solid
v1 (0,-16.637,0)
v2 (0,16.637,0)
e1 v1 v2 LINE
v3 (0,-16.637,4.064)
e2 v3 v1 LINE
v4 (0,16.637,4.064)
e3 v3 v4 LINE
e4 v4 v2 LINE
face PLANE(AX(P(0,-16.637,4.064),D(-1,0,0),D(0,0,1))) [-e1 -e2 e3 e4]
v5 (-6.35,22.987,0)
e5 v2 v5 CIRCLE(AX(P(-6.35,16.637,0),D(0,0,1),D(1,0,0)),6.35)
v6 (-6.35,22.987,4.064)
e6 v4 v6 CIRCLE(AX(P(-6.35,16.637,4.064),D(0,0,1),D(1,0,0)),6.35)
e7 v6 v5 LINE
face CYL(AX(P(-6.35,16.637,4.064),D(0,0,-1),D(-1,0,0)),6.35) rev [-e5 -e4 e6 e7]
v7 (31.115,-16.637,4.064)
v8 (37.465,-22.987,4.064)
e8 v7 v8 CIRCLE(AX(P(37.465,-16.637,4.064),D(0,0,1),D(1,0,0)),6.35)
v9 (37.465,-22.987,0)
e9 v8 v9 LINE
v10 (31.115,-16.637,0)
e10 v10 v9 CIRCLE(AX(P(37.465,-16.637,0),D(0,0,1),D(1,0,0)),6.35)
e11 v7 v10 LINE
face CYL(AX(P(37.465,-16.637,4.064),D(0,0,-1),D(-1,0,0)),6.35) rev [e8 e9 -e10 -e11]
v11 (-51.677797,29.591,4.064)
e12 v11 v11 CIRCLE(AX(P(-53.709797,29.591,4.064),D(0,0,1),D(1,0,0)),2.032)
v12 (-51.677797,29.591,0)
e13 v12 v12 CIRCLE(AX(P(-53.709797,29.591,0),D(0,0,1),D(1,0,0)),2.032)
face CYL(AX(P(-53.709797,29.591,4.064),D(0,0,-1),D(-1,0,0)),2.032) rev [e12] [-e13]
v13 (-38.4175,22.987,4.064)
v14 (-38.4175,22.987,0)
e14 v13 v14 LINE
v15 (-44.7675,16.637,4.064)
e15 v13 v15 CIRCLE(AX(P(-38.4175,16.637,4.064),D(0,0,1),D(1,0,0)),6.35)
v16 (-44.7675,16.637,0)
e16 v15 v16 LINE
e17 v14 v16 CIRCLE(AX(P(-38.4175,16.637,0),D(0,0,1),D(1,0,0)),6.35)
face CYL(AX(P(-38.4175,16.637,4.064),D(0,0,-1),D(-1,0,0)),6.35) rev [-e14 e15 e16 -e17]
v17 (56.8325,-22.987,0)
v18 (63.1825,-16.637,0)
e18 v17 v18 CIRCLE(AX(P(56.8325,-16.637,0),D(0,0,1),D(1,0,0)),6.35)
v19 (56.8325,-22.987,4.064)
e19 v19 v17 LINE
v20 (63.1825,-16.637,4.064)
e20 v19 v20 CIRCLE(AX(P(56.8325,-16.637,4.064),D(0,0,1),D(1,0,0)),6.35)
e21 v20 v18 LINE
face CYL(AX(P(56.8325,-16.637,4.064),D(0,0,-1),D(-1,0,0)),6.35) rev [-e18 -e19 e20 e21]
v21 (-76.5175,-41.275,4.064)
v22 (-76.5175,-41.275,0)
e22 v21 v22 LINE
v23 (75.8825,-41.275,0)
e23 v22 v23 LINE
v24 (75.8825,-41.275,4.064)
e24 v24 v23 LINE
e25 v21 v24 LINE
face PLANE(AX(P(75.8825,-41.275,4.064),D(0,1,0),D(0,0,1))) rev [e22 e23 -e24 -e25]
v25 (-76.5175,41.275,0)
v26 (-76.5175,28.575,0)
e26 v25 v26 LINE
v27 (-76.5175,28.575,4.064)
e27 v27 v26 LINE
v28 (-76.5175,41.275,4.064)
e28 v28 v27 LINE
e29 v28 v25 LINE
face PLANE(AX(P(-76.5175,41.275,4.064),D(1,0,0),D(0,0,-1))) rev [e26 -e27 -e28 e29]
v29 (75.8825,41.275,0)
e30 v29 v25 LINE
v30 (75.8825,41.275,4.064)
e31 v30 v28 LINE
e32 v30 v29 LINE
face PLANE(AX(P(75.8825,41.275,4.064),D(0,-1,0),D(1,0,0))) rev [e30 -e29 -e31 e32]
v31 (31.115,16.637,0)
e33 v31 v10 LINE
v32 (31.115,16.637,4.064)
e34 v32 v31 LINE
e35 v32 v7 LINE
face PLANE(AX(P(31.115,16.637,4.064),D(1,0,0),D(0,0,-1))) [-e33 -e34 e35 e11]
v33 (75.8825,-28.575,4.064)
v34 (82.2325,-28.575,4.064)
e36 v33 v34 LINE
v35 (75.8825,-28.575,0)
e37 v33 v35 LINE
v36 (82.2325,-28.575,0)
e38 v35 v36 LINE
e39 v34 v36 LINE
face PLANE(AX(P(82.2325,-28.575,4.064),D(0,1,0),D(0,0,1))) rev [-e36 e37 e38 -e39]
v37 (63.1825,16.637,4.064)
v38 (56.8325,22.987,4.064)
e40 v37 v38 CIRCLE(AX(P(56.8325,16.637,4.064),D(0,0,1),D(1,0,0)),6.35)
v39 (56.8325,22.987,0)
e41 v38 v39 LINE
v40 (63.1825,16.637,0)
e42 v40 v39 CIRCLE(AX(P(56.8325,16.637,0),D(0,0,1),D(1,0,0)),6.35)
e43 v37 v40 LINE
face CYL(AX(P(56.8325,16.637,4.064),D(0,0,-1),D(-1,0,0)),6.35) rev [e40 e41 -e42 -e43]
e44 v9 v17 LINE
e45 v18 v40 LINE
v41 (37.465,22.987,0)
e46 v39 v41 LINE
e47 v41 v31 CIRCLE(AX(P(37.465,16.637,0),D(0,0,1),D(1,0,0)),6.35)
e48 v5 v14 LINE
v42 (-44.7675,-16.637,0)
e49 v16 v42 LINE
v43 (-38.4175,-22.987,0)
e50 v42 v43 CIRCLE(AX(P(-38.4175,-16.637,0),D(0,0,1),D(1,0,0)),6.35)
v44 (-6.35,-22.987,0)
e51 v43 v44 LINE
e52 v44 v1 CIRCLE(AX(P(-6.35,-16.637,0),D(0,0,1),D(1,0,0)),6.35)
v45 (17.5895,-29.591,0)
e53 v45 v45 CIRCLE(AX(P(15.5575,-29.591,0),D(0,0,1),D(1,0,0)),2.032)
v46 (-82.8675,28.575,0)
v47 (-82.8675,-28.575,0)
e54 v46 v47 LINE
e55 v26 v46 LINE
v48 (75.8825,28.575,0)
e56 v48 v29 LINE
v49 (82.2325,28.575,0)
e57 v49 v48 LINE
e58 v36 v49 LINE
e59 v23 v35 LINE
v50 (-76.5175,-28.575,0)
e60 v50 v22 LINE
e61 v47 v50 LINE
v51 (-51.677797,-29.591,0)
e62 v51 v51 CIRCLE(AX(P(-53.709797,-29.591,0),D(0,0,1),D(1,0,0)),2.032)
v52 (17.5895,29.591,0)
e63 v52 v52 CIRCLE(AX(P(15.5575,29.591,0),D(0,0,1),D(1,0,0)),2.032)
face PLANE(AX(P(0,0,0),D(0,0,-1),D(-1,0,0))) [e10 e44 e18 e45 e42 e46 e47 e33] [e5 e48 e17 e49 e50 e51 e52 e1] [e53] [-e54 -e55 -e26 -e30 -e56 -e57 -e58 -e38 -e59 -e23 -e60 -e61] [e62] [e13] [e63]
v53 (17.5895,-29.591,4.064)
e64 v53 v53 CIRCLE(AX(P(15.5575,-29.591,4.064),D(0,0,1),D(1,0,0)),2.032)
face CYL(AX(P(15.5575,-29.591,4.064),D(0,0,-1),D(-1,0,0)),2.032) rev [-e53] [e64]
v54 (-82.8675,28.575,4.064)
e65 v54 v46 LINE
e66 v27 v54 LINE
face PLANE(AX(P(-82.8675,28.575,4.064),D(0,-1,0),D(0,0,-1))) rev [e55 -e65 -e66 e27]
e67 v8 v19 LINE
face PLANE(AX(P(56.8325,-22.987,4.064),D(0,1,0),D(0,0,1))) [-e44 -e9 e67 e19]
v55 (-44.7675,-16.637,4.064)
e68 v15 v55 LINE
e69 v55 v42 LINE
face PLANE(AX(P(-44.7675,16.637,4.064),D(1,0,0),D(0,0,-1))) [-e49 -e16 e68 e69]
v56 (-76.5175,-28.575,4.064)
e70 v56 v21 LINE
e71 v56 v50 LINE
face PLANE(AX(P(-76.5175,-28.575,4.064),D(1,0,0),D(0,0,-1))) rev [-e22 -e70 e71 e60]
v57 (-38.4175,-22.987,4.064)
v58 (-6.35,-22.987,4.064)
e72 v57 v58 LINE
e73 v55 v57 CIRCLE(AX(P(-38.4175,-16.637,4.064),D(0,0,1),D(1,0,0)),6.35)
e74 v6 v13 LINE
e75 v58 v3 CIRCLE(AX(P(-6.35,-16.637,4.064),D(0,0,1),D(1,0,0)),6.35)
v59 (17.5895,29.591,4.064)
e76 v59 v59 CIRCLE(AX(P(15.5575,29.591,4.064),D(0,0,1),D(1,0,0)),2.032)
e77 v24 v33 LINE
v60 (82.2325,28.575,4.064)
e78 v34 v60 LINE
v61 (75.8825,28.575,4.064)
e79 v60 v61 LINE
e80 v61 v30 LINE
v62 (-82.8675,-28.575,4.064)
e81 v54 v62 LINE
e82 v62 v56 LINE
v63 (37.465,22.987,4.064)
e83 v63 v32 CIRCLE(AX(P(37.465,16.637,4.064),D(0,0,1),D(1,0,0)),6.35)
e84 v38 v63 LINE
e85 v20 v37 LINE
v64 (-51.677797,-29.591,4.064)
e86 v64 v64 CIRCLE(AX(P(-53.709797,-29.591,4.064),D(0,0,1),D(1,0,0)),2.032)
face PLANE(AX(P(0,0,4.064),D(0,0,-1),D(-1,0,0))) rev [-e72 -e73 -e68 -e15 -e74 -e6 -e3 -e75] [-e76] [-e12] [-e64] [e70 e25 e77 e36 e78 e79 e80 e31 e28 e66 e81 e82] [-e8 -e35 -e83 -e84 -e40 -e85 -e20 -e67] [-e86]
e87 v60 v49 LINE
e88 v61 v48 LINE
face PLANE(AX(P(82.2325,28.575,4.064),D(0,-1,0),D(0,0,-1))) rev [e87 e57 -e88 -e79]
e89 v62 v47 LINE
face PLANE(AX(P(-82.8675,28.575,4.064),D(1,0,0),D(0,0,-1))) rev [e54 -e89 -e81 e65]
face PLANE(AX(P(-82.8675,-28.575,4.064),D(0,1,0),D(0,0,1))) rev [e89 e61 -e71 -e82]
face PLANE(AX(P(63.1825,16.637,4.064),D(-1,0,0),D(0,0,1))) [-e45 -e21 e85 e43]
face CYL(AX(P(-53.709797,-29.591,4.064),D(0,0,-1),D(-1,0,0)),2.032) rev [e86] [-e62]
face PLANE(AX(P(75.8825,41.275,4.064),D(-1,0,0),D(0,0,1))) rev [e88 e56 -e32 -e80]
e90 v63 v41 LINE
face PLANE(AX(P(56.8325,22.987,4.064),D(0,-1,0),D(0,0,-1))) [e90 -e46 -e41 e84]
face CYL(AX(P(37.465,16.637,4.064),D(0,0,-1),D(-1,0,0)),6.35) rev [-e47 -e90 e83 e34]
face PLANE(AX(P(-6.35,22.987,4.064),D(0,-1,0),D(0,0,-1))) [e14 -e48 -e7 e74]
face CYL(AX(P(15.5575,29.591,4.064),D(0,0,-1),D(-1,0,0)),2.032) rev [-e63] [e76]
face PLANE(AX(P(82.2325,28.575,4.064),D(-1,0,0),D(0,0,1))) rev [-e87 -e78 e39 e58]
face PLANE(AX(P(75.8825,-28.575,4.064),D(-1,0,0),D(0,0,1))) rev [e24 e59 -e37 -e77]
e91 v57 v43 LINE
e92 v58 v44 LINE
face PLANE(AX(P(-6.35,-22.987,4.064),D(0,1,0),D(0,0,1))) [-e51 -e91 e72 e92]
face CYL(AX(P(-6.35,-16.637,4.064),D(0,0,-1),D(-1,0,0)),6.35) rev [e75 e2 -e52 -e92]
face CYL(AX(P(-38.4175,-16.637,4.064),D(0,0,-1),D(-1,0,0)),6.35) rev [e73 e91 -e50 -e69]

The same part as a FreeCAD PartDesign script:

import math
import FreeCAD as App
import Part
import Sketcher
from FreeCAD import Vector
Q = App.Units.Quantity


def add_polygon(sketch, points):
    """Adds a closed chain of lines whose ends are joined by coincident constraints."""
    first, n = sketch.GeometryCount, len(points)
    for a, b in zip(points, points[1:] + points[:1]):
        sketch.addGeometry(Part.LineSegment(App.Vector(*a, 0), App.Vector(*b, 0)), False)
    for i in range(n):
        sketch.addConstraint(Sketcher.Constraint("Coincident", first + i, 2, first + (i + 1) % n, 1))

doc = App.newDocument("Part")
body = doc.addObject("PartDesign::Body", "Body")

sketch1 = doc.addObject("Sketcher::SketchObject", "Sketch")
body.addObject(sketch1)
sketch1.AttachmentSupport = (doc.XY_Plane, [""])
sketch1.MapMode = "FlatFace"
add_polygon(sketch1, [(-76.5, -41.3), (75.9, -41.3), (75.9, -28.6), (82.2, -28.6), (82.2, 28.6), (75.9, 28.6), (75.9, 41.3), (-76.5, 41.3), (-76.5, 28.6), (-82.9, 28.6), (-82.9, -28.6), (-76.5, -28.6)])
sketch1.addGeometry(Part.Circle(Vector(15.6, -29.6, 0), Vector(0, 0, 1), 2), False)
sketch1.addGeometry(Part.ArcOfCircle(Part.Circle(Vector(56.8, 16.6, 0), Vector(0, 0, 1), 6.3), math.radians(0), math.radians(90)), False)
sketch1.addGeometry(Part.LineSegment(Vector(63.2, 16.6, 0), Vector(63.2, -16.6, 0)), False)
sketch1.addGeometry(Part.ArcOfCircle(Part.Circle(Vector(56.8, -16.6, 0), Vector(0, 0, 1), 6.3), math.radians(-90), math.radians(0)), False)
sketch1.addGeometry(Part.LineSegment(Vector(56.8, -23, 0), Vector(37.5, -23, 0)), False)
sketch1.addGeometry(Part.ArcOfCircle(Part.Circle(Vector(37.5, -16.6, 0), Vector(0, 0, 1), 6.3), math.radians(180), math.radians(270)), False)
sketch1.addGeometry(Part.LineSegment(Vector(31.1, -16.6, 0), Vector(31.1, 16.6, 0)), False)
sketch1.addGeometry(Part.ArcOfCircle(Part.Circle(Vector(37.5, 16.6, 0), Vector(0, 0, 1), 6.3), math.radians(90), math.radians(180)), False)
sketch1.addGeometry(Part.LineSegment(Vector(37.5, 23, 0), Vector(56.8, 23, 0)), False)
sketch1.addGeometry(Part.Circle(Vector(-53.7, -29.6, 0), Vector(0, 0, 1), 2), False)
sketch1.addGeometry(Part.ArcOfCircle(Part.Circle(Vector(-6.3, 16.6, 0), Vector(0, 0, 1), 6.3), math.radians(0), math.radians(90)), False)
sketch1.addGeometry(Part.LineSegment(Vector(0, 16.6, 0), Vector(0, -16.6, 0)), False)
sketch1.addGeometry(Part.ArcOfCircle(Part.Circle(Vector(-6.3, -16.6, 0), Vector(0, 0, 1), 6.3), math.radians(-90), math.radians(0)), False)
sketch1.addGeometry(Part.LineSegment(Vector(-6.3, -23, 0), Vector(-38.4, -23, 0)), False)
sketch1.addGeometry(Part.ArcOfCircle(Part.Circle(Vector(-38.4, -16.6, 0), Vector(0, 0, 1), 6.3), math.radians(180), math.radians(270)), False)
sketch1.addGeometry(Part.LineSegment(Vector(-44.8, -16.6, 0), Vector(-44.8, 16.6, 0)), False)
sketch1.addGeometry(Part.ArcOfCircle(Part.Circle(Vector(-38.4, 16.6, 0), Vector(0, 0, 1), 6.3), math.radians(90), math.radians(180)), False)
sketch1.addGeometry(Part.LineSegment(Vector(-38.4, 23, 0), Vector(-6.3, 23, 0)), False)
sketch1.addGeometry(Part.Circle(Vector(15.6, 29.6, 0), Vector(0, 0, 1), 2), False)
sketch1.addGeometry(Part.Circle(Vector(-53.7, 29.6, 0), Vector(0, 0, 1), 2), False)
sketch1.addConstraint(Sketcher.Constraint("Tangent", 13, 1, 14, 1))
sketch1.addConstraint(Sketcher.Constraint("Tangent", 14, 2, 15, 2))
sketch1.addConstraint(Sketcher.Constraint("Tangent", 15, 1, 16, 1))
sketch1.addConstraint(Sketcher.Constraint("Tangent", 16, 2, 17, 2))
sketch1.addConstraint(Sketcher.Constraint("Tangent", 17, 1, 18, 1))
sketch1.addConstraint(Sketcher.Constraint("Tangent", 18, 2, 19, 2))
sketch1.addConstraint(Sketcher.Constraint("Tangent", 19, 1, 20, 1))
sketch1.addConstraint(Sketcher.Constraint("Tangent", 20, 2, 13, 2))
sketch1.addConstraint(Sketcher.Constraint("Tangent", 22, 1, 23, 1))
sketch1.addConstraint(Sketcher.Constraint("Tangent", 23, 2, 24, 2))
sketch1.addConstraint(Sketcher.Constraint("Tangent", 24, 1, 25, 1))
sketch1.addConstraint(Sketcher.Constraint("Tangent", 25, 2, 26, 2))
sketch1.addConstraint(Sketcher.Constraint("Tangent", 26, 1, 27, 1))
sketch1.addConstraint(Sketcher.Constraint("Tangent", 27, 2, 28, 2))
sketch1.addConstraint(Sketcher.Constraint("Tangent", 28, 1, 29, 1))
sketch1.addConstraint(Sketcher.Constraint("Tangent", 29, 2, 22, 2))
sketch1.addConstraint(Sketcher.Constraint("Horizontal", 0))
sketch1.addConstraint(Sketcher.Constraint("Vertical", 1))
sketch1.addConstraint(Sketcher.Constraint("Horizontal", 2))
sketch1.addConstraint(Sketcher.Constraint("Vertical", 3))
sketch1.addConstraint(Sketcher.Constraint("Horizontal", 4))
sketch1.addConstraint(Sketcher.Constraint("Vertical", 5))
sketch1.addConstraint(Sketcher.Constraint("Horizontal", 6))
sketch1.addConstraint(Sketcher.Constraint("Vertical", 7))
sketch1.addConstraint(Sketcher.Constraint("Horizontal", 8))
sketch1.addConstraint(Sketcher.Constraint("Vertical", 9))
sketch1.addConstraint(Sketcher.Constraint("Horizontal", 10))
sketch1.addConstraint(Sketcher.Constraint("Vertical", 11))
sketch1.addConstraint(Sketcher.Constraint("Vertical", 14))
sketch1.addConstraint(Sketcher.Constraint("Horizontal", 16))
sketch1.addConstraint(Sketcher.Constraint("Vertical", 18))
sketch1.addConstraint(Sketcher.Constraint("Horizontal", 20))
sketch1.addConstraint(Sketcher.Constraint("Vertical", 23))
sketch1.addConstraint(Sketcher.Constraint("Horizontal", 25))
sketch1.addConstraint(Sketcher.Constraint("Vertical", 27))
sketch1.addConstraint(Sketcher.Constraint("Horizontal", 29))
sketch1.addConstraint(Sketcher.Constraint("Equal", 13, 15))
sketch1.addConstraint(Sketcher.Constraint("Equal", 15, 17))
sketch1.addConstraint(Sketcher.Constraint("Equal", 17, 19))
sketch1.addConstraint(Sketcher.Constraint("Equal", 12, 21))
sketch1.addConstraint(Sketcher.Constraint("Equal", 19, 22))
sketch1.addConstraint(Sketcher.Constraint("Equal", 22, 24))
sketch1.addConstraint(Sketcher.Constraint("Equal", 24, 26))
sketch1.addConstraint(Sketcher.Constraint("Equal", 26, 28))
sketch1.addConstraint(Sketcher.Constraint("Equal", 21, 30))
sketch1.addConstraint(Sketcher.Constraint("Equal", 30, 31))
sketch1.addConstraint(Sketcher.Constraint("Symmetric", 22, 1, 23, 2, -1, 1))
sketch1.addConstraint(Sketcher.Constraint("Symmetric", 12, 3, 30, 3, -1))
sketch1.addConstraint(Sketcher.Constraint("Symmetric", 21, 3, 31, 3, -1))
sketch1.addConstraint(Sketcher.Constraint("Symmetric", 1, 2, 4, 2, -1))
sketch1.addConstraint(Sketcher.Constraint("Symmetric", 7, 2, 10, 2, -1))
sketch1.addConstraint(Sketcher.Constraint("Horizontal", 12, 3, 21, 3))
sketch1.addConstraint(Sketcher.Constraint("Horizontal", 19, 3, 22, 3))
sketch1.addConstraint(Sketcher.Constraint("Horizontal", 17, 3, 24, 3))
sketch1.addConstraint(Sketcher.Constraint("Horizontal", 4, 2, 7, 2))
sketch1.addConstraint(Sketcher.Constraint("Equal", 4, 8))
sketch1.addConstraint(Sketcher.Constraint("Equal", 1, 5))
sketch1.addConstraint(Sketcher.Constraint("Diameter", 12, Q("0.16 in")))
sketch1.addConstraint(Sketcher.Constraint("DistanceX", 0, 1, 0, 2, Q("6 in")))
sketch1.addConstraint(Sketcher.Constraint("Radius", 13, Q("0.25 in")))
sketch1.addConstraint(Sketcher.Constraint("DistanceY", 1, 1, 1, 2, Q("0.5 in")))
sketch1.addConstraint(Sketcher.Constraint("DistanceX", 15, 3, 2, 2, Q("1 in")))
sketch1.addConstraint(Sketcher.Constraint("DistanceX", 2, 1, 2, 2, Q("0.25 in")))
sketch1.addConstraint(Sketcher.Constraint("DistanceY", 3, 1, 3, 2, Q("2.25 in")))
sketch1.addConstraint(Sketcher.Constraint("DistanceY", 14, 2, 14, 1, Q("1.31 in")))
sketch1.addConstraint(Sketcher.Constraint("DistanceX", 6, 2, 28, 3, Q("1.5 in")))
sketch1.addConstraint(Sketcher.Constraint("DistanceY", 12, 3, 13, 3, Q("1.82 in")))
sketch1.addConstraint(Sketcher.Constraint("DistanceX", 16, 2, 16, 1, Q("0.7625 in")))
sketch1.addConstraint(Sketcher.Constraint("DistanceX", 25, 2, 25, 1, Q("1.2625 in")))
sketch1.addConstraint(Sketcher.Constraint("DistanceX", 12, 3, 13, 3, Q("1.625 in")))
sketch1.addConstraint(Sketcher.Constraint("DistanceX", 21, 3, -1, 1, 53.709797))
pad1 = doc.addObject("PartDesign::Pad", "Pad")
body.addObject(pad1)
pad1.Profile = sketch1
pad1.Length = Q("0.16 in")

doc.recompute()
